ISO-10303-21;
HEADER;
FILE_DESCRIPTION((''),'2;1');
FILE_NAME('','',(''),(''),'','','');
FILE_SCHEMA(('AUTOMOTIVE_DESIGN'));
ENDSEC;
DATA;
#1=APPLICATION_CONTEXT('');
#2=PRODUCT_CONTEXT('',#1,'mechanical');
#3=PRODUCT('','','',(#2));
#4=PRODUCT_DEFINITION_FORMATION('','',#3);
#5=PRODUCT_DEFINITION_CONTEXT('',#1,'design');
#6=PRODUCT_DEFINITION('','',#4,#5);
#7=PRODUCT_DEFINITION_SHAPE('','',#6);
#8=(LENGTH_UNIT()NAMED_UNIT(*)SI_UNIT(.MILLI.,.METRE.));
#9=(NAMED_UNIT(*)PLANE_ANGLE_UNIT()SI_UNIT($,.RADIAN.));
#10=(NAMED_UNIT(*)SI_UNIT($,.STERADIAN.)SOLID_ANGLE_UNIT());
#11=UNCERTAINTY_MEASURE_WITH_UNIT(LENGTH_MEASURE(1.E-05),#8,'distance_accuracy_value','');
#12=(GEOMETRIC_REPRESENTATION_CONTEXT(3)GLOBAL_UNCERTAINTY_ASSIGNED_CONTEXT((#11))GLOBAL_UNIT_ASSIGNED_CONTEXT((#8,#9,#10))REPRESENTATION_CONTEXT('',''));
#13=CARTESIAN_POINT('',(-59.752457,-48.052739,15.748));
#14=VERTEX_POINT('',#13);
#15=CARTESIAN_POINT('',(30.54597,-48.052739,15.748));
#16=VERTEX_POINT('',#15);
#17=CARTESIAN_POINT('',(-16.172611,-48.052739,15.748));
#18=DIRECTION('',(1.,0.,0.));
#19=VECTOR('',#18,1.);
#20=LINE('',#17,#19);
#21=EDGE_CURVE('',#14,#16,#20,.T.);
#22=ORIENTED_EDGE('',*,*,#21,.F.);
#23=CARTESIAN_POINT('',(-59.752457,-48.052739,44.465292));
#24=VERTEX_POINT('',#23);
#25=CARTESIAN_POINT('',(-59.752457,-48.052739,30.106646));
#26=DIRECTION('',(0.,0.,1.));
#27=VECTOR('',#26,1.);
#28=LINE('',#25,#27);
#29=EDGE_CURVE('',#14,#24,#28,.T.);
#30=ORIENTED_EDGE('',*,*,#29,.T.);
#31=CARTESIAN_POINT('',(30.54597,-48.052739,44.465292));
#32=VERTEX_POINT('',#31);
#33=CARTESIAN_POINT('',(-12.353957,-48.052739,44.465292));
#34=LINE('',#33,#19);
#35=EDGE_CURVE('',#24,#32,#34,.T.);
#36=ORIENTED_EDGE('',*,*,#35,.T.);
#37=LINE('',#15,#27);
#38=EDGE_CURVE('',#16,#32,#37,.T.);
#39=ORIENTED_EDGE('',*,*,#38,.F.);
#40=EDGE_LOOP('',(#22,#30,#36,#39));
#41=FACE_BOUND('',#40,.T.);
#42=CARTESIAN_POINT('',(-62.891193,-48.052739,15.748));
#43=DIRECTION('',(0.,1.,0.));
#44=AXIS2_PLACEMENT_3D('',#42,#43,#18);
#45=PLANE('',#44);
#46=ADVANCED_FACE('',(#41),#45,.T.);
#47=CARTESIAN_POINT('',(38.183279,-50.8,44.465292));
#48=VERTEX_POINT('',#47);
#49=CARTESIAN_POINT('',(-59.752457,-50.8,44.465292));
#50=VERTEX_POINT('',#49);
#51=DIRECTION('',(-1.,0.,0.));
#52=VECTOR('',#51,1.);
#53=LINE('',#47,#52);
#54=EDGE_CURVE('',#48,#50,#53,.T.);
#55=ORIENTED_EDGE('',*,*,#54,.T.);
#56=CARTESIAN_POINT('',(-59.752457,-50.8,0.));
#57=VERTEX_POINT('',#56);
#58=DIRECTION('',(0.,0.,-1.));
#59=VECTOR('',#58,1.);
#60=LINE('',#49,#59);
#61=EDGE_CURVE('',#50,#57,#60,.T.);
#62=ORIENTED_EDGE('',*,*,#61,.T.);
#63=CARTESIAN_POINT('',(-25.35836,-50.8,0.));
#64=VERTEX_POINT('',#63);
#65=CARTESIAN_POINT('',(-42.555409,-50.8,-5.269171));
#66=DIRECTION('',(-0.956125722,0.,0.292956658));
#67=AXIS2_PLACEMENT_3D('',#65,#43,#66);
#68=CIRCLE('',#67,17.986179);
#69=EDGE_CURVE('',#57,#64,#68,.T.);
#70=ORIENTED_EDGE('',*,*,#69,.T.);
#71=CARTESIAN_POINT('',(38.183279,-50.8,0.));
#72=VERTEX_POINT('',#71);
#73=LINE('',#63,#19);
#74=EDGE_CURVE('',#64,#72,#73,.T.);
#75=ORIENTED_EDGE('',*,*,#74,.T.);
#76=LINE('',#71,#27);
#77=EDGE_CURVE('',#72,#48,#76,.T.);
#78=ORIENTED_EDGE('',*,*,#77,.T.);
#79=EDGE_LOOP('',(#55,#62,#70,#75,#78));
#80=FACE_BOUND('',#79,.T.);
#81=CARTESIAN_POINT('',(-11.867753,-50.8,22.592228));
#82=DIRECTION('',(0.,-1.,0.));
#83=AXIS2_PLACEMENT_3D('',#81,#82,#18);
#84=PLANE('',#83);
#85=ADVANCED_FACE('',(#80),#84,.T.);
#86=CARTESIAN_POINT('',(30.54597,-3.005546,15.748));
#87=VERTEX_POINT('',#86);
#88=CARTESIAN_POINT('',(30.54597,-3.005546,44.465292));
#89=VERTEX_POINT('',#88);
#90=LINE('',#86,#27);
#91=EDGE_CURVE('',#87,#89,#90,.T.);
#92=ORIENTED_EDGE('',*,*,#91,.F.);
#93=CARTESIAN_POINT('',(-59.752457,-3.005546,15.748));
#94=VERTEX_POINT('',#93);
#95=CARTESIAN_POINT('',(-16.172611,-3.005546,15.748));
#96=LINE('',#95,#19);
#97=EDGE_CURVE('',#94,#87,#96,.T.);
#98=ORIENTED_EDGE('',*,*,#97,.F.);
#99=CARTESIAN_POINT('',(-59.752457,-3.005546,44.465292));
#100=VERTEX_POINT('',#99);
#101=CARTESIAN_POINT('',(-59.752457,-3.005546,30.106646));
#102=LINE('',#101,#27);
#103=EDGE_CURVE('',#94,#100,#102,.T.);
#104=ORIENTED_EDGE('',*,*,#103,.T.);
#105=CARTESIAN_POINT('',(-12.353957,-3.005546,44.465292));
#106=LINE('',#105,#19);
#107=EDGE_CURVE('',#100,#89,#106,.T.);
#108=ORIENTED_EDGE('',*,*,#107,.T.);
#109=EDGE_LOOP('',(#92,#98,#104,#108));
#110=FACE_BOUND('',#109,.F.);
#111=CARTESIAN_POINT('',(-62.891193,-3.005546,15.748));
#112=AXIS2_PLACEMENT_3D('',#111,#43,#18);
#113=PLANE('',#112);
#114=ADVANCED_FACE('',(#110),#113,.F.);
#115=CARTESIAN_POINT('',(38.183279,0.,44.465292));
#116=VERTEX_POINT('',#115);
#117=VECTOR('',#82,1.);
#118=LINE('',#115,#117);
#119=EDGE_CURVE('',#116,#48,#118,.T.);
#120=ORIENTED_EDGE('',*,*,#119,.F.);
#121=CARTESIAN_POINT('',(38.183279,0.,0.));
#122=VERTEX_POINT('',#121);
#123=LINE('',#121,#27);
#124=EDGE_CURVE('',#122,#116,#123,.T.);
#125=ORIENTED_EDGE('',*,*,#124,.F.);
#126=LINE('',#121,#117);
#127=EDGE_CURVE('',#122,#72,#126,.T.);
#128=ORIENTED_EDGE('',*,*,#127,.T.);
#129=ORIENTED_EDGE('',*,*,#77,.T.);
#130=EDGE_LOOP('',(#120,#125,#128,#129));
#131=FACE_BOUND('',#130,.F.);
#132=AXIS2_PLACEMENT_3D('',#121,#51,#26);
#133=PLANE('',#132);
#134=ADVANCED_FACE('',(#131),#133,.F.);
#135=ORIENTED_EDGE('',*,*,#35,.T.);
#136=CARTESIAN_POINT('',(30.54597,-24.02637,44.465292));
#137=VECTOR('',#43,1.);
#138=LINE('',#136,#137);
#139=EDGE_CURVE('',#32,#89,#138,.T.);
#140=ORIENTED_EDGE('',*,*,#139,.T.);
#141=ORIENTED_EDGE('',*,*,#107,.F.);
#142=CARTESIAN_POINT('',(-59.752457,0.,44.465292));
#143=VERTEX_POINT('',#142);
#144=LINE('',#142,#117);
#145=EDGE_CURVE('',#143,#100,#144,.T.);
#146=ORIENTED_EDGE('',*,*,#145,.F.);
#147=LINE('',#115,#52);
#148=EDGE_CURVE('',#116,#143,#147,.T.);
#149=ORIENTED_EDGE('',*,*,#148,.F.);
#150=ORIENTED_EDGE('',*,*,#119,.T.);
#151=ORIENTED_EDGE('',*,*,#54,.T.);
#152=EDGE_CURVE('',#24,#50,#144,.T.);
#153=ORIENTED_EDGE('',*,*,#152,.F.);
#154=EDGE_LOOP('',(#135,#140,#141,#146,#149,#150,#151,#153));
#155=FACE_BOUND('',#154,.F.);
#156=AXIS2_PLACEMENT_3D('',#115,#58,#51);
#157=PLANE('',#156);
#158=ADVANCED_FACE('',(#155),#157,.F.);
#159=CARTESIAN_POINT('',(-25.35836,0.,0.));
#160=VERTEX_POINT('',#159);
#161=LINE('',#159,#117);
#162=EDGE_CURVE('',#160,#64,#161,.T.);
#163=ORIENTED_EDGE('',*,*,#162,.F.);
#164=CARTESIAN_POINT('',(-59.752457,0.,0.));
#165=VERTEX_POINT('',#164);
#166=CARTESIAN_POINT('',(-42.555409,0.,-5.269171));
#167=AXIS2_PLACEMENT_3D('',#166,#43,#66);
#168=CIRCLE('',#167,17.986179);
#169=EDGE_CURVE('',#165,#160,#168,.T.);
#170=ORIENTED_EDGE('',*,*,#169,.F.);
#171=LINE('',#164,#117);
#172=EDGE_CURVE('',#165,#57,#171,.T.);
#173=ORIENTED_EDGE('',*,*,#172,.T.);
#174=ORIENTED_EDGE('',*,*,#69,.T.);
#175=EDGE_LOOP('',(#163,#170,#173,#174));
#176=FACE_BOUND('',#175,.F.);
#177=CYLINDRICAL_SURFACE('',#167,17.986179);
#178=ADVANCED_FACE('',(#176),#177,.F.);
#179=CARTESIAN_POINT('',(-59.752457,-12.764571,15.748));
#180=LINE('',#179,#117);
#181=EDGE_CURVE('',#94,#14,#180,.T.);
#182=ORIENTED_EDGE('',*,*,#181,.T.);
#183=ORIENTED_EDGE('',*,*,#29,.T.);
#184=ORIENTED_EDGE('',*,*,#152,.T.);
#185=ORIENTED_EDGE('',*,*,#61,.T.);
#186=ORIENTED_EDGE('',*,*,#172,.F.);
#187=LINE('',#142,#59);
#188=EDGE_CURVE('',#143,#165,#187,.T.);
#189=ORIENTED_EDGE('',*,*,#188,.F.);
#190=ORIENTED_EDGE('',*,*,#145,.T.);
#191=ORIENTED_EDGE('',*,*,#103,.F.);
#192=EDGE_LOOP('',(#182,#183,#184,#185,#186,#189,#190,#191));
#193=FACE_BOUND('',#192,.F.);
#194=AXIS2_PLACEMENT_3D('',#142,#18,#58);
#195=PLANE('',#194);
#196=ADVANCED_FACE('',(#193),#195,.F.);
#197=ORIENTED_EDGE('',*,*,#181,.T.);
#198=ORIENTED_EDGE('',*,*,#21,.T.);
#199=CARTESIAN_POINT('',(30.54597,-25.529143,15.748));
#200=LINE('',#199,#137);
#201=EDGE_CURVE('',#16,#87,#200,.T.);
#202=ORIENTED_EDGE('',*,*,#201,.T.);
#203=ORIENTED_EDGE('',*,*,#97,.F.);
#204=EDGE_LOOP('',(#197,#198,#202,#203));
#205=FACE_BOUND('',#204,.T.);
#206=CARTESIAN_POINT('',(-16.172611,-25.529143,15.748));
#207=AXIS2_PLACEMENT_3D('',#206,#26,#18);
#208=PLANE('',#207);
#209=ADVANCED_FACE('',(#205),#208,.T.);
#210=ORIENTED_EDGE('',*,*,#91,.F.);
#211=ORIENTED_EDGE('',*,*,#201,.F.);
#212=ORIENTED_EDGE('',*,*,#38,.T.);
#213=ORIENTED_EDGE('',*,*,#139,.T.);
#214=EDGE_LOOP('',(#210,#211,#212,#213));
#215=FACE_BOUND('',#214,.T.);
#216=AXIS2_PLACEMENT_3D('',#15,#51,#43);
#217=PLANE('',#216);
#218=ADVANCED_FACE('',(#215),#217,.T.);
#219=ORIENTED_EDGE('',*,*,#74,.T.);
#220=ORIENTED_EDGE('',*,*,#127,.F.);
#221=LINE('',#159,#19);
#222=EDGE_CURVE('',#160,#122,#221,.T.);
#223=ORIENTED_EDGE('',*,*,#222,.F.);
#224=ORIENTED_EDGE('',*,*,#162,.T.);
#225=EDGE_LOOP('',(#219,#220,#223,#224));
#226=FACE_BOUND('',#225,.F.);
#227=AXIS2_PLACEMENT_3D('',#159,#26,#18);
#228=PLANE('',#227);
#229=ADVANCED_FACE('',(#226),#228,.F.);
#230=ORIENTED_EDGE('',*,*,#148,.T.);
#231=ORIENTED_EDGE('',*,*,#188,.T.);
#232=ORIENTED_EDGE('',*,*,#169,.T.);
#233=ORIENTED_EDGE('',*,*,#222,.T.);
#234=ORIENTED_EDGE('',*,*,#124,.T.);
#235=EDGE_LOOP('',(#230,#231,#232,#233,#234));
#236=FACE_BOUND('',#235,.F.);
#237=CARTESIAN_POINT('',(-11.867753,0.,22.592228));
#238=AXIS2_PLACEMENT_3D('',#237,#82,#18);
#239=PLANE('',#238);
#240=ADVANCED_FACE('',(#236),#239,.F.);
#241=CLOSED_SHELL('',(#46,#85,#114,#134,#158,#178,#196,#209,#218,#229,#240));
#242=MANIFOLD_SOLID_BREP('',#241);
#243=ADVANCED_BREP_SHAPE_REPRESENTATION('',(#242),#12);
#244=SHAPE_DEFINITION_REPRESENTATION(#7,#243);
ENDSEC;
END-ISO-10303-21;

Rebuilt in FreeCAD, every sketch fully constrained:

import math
import FreeCAD as App
import Part
import Sketcher
Q = App.Units.Quantity


def add_polygon(sketch, points):
    """Adds a closed chain of lines whose ends are joined by coincident constraints."""
    first, n = sketch.GeometryCount, len(points)
    for a, b in zip(points, points[1:] + points[:1]):
        sketch.addGeometry(Part.LineSegment(App.Vector(*a, 0), App.Vector(*b, 0)), False)
    for i in range(n):
        sketch.addConstraint(Sketcher.Constraint("Coincident", first + i, 2, first + (i + 1) % n, 1))

doc = App.newDocument("Part")
params = doc.addObject("Spreadsheet::Sheet", "Params")
for row, (alias, value) in enumerate([
    ("pad1_length", "2 in"),
    ("pocket1_length", "1.97 in"),
], start=1):
    params.set(f"A{row}", alias)
    params.set(f"B{row}", "=" + value)
    params.setAlias(f"B{row}", alias)

body = doc.addObject("PartDesign::Body", "Body")

sketch1 = body.newObject("Sketcher::SketchObject", "Sketch")
sketch1.AttachmentSupport = (doc.getObject("XZ_Plane"), [""])
sketch1.MapMode = "FlatFace"
sketch1.addGeometry([
    Part.LineSegment(App.Vector(-25, 0, 0), App.Vector(38, 0, 0)),
    Part.LineSegment(App.Vector(38, 0, 0), App.Vector(38, 44, 0)),
    Part.LineSegment(App.Vector(38, 44, 0), App.Vector(-60, 44, 0)),
    Part.LineSegment(App.Vector(-60, 44, 0), App.Vector(-60, 0, 0)),
    Part.ArcOfCircle(Part.Circle(App.Vector(-43, -5, 0), App.Vector(0, 0, 1), 18), math.radians(17), math.radians(163)),
], False)
sketch1.addConstraint([
    Sketcher.Constraint("Coincident", 0, 2, 1, 1),
    Sketcher.Constraint("Coincident", 1, 2, 2, 1),
    Sketcher.Constraint("Coincident", 2, 2, 3, 1),
    Sketcher.Constraint("Coincident", 3, 2, 4, 2),
    Sketcher.Constraint("Coincident", 4, 1, 0, 1),
    Sketcher.Constraint("Horizontal", 0),
    Sketcher.Constraint("Vertical", 1),
    Sketcher.Constraint("Horizontal", 2),
    Sketcher.Constraint("Vertical", 3),
    Sketcher.Constraint("PointOnObject", 0, 2, -1),
    Sketcher.Constraint("PointOnObject", 3, 2, -1),
    Sketcher.Constraint("Radius", 4, Q("17.986179 mm")),
    Sketcher.Constraint("DistanceX", 0, 1, 0, 2, Q("63.54164 mm")),
    Sketcher.Constraint("DistanceY", 1, 1, 1, 2, Q("44.465292 mm")),
    Sketcher.Constraint("DistanceX", 2, 2, 2, 1, Q("97.935736 mm")),
    Sketcher.Constraint("DistanceX", 4, 3, -1, 1, Q("42.555409 mm")),
])
pad1 = body.newObject("PartDesign::Pad", "Pad")
pad1.Profile = sketch1
pad1.setExpression("Length", "Params.pad1_length")

sketch2 = body.newObject("Sketcher::SketchObject", "Sketch001")
sketch2.AttachmentSupport = (doc.getObject("XY_Plane"), [""])
sketch2.MapMode = "FlatFace"
sketch2.AttachmentOffset = App.Placement(App.Vector(0, 0, 0.62 * 25.4), App.Rotation())
add_polygon(sketch2, [(-63, -3), (-63, -48), (31, -48), (31, -3)])
sketch2.addConstraint([
    Sketcher.Constraint("Vertical", 0),
    Sketcher.Constraint("Horizontal", 1),
    Sketcher.Constraint("Vertical", 2),
    Sketcher.Constraint("Horizontal", 3),
    Sketcher.Constraint("DistanceX", 1, 1, 1, 2, Q("93.437163 mm")),
    Sketcher.Constraint("DistanceY", 0, 2, 0, 1, Q("45.047193 mm")),
    Sketcher.Constraint("DistanceY", 0, 2, -1, 1, Q("48.052739 mm")),
    Sketcher.Constraint("DistanceX", -1, 1, 1, 2, Q("30.54597 mm")),
])
pocket1 = body.newObject("PartDesign::Pocket", "Pocket")
pocket1.Profile = sketch2
pocket1.setExpression("Length", "Params.pocket1_length")
pocket1.Reversed = True

doc.recompute()
